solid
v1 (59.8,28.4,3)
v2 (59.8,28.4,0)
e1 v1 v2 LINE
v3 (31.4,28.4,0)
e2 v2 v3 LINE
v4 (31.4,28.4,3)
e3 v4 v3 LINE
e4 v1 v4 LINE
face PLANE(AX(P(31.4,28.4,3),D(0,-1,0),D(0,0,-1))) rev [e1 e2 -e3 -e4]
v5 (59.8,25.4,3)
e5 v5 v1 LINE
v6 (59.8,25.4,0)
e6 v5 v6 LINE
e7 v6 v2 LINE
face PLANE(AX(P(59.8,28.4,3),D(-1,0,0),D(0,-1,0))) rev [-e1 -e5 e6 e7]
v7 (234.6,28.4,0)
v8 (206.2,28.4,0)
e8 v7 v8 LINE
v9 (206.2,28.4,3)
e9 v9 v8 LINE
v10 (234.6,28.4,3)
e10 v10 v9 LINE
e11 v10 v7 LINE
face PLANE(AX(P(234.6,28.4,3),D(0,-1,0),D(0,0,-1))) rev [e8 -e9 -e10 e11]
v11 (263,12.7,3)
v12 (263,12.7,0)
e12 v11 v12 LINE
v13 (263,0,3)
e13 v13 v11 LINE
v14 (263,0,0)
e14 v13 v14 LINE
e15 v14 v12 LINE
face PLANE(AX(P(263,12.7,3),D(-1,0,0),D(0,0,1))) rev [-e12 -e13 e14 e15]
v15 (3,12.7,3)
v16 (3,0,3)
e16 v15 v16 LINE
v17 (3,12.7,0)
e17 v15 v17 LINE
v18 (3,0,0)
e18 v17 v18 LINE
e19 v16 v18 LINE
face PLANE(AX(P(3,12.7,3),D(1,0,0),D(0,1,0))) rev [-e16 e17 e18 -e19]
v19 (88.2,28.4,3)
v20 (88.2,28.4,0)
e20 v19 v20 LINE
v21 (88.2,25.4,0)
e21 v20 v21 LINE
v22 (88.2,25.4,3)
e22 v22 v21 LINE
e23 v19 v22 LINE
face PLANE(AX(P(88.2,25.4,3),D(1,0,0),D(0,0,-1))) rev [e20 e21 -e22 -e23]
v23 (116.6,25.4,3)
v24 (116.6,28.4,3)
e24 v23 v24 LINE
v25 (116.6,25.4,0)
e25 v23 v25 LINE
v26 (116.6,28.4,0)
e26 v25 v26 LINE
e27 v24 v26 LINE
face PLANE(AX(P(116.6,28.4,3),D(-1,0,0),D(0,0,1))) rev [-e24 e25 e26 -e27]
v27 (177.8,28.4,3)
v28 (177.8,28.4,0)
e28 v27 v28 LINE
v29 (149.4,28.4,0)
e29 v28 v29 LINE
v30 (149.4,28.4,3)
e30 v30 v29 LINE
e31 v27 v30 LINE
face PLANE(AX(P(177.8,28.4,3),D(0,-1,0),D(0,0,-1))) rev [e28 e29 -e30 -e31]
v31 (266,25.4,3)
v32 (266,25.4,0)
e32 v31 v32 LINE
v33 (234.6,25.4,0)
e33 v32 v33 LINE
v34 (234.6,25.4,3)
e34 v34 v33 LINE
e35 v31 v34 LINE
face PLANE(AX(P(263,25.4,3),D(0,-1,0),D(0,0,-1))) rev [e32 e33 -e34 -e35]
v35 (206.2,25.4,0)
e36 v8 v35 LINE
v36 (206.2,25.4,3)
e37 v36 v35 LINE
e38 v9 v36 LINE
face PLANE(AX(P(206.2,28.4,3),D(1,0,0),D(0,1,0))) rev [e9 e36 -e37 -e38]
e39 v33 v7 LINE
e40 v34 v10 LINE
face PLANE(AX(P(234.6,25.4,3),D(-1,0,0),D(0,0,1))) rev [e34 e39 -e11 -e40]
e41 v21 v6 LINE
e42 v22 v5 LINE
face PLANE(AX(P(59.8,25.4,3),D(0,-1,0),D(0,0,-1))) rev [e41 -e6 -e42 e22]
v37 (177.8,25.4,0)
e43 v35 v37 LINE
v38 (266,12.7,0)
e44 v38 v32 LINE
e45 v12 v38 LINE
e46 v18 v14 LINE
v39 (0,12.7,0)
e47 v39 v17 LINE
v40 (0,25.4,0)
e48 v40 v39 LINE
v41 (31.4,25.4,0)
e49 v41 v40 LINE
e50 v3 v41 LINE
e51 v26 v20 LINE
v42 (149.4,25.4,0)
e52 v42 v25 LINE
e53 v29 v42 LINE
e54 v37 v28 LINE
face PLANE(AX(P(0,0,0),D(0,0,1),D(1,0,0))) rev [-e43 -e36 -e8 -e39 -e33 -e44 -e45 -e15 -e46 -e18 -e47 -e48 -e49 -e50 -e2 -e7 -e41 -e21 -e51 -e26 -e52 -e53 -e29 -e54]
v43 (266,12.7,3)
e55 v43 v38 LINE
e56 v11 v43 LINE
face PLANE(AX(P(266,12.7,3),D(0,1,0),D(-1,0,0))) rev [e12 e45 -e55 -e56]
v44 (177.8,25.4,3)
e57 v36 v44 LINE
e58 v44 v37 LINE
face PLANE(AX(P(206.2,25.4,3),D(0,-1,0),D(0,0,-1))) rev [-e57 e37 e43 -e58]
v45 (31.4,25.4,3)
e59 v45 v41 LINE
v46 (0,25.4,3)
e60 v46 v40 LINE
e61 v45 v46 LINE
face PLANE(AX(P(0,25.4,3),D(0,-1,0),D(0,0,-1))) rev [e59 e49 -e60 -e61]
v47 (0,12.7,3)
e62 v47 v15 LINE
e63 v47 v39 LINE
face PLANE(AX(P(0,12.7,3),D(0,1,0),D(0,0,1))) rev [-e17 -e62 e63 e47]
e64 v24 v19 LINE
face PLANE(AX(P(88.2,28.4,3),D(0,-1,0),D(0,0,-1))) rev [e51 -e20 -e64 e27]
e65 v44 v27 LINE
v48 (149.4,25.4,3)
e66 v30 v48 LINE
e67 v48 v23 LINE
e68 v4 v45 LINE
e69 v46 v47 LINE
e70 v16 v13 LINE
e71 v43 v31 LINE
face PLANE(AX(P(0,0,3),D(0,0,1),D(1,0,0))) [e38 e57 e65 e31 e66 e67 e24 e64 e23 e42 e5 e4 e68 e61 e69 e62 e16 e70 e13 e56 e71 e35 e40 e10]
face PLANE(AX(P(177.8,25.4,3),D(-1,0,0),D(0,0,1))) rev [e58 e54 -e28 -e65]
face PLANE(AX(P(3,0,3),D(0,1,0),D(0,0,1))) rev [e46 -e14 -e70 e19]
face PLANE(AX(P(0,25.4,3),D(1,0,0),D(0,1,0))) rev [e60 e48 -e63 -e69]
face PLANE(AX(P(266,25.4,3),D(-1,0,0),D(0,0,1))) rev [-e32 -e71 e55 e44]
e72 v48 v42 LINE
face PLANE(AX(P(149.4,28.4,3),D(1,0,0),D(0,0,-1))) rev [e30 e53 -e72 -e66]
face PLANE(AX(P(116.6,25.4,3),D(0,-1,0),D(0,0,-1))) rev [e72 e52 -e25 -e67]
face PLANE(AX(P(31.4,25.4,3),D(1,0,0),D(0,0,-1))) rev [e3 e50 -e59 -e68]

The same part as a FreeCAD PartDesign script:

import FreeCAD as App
import Part
import Sketcher

V = App.Vector

doc = App.newDocument("Part")
params = doc.addObject("Spreadsheet::Sheet", "Params")
for row, (alias, value) in enumerate([
    ("sketch1_width", "3 mm"),
    ("sketch1_width2", "260 mm"),
    ("sketch1_width3", "31.4 mm"),
    ("sketch1_width4", "28.4 mm"),
    ("sketch1_height", "12.7 mm"),
    ("pad1_length", "3 mm"),
], start=1):
    params.set(f"A{row}", alias)
    params.set(f"B{row}", "=" + value)
    params.setAlias(f"B{row}", alias)

body = doc.addObject("PartDesign::Body", "Body")

# Sketch on XY plane
sketch1 = doc.addObject("Sketcher::SketchObject", "Sketch")
body.addObject(sketch1)
sketch1.AttachmentSupport = (doc.XY_Plane, [""])
sketch1.MapMode = "FlatFace"
sketch1.addGeometry(Part.LineSegment(V(0, 25.4, 0), V(0, 12.7, 0)), False)
sketch1.addGeometry(Part.LineSegment(V(0, 12.7, 0), V(3, 12.7, 0)), False)
sketch1.addGeometry(Part.LineSegment(V(3, 12.7, 0), V(3, 0, 0)), False)
sketch1.addGeometry(Part.LineSegment(V(3, 0, 0), V(263, 0, 0)), False)
sketch1.addGeometry(Part.LineSegment(V(263, 0, 0), V(263, 12.7, 0)), False)
sketch1.addGeometry(Part.LineSegment(V(263, 12.7, 0), V(266, 12.7, 0)), False)
sketch1.addGeometry(Part.LineSegment(V(266, 12.7, 0), V(266, 25.4, 0)), False)
sketch1.addGeometry(Part.LineSegment(V(266, 25.4, 0), V(234.6, 25.4, 0)), False)
sketch1.addGeometry(Part.LineSegment(V(234.6, 25.4, 0), V(234.6, 28.4, 0)), False)
sketch1.addGeometry(Part.LineSegment(V(234.6, 28.4, 0), V(206.2, 28.4, 0)), False)
sketch1.addGeometry(Part.LineSegment(V(206.2, 28.4, 0), V(206.2, 25.4, 0)), False)
sketch1.addGeometry(Part.LineSegment(V(206.2, 25.4, 0), V(177.8, 25.4, 0)), False)
sketch1.addGeometry(Part.LineSegment(V(177.8, 25.4, 0), V(177.8, 28.4, 0)), False)
sketch1.addGeometry(Part.LineSegment(V(177.8, 28.4, 0), V(149.4, 28.4, 0)), False)
sketch1.addGeometry(Part.LineSegment(V(149.4, 28.4, 0), V(149.4, 25.4, 0)), False)
sketch1.addGeometry(Part.LineSegment(V(149.4, 25.4, 0), V(116.6, 25.4, 0)), False)
sketch1.addGeometry(Part.LineSegment(V(116.6, 25.4, 0), V(116.6, 28.4, 0)), False)
sketch1.addGeometry(Part.LineSegment(V(116.6, 28.4, 0), V(88.2, 28.4, 0)), False)
sketch1.addGeometry(Part.LineSegment(V(88.2, 28.4, 0), V(88.2, 25.4, 0)), False)
sketch1.addGeometry(Part.LineSegment(V(88.2, 25.4, 0), V(59.8, 25.4, 0)), False)
sketch1.addGeometry(Part.LineSegment(V(59.8, 25.4, 0), V(59.8, 28.4, 0)), False)
sketch1.addGeometry(Part.LineSegment(V(59.8, 28.4, 0), V(31.4, 28.4, 0)), False)
sketch1.addGeometry(Part.LineSegment(V(31.4, 28.4, 0), V(31.4, 25.4, 0)), False)
sketch1.addGeometry(Part.LineSegment(V(31.4, 25.4, 0), V(0, 25.4, 0)), False)
sketch1.addConstraint(Sketcher.Constraint("Coincident", 0, 2, 1, 1))
sketch1.addConstraint(Sketcher.Constraint("Coincident", 1, 2, 2, 1))
sketch1.addConstraint(Sketcher.Constraint("Coincident", 2, 2, 3, 1))
sketch1.addConstraint(Sketcher.Constraint("Coincident", 3, 2, 4, 1))
sketch1.addConstraint(Sketcher.Constraint("Coincident", 4, 2, 5, 1))
sketch1.addConstraint(Sketcher.Constraint("Coincident", 5, 2, 6, 1))
sketch1.addConstraint(Sketcher.Constraint("Coincident", 6, 2, 7, 1))
sketch1.addConstraint(Sketcher.Constraint("Coincident", 7, 2, 8, 1))
sketch1.addConstraint(Sketcher.Constraint("Coincident", 8, 2, 9, 1))
sketch1.addConstraint(Sketcher.Constraint("Coincident", 9, 2, 10, 1))
sketch1.addConstraint(Sketcher.Constraint("Coincident", 10, 2, 11, 1))
sketch1.addConstraint(Sketcher.Constraint("Coincident", 11, 2, 12, 1))
sketch1.addConstraint(Sketcher.Constraint("Coincident", 12, 2, 13, 1))
sketch1.addConstraint(Sketcher.Constraint("Coincident", 13, 2, 14, 1))
sketch1.addConstraint(Sketcher.Constraint("Coincident", 14, 2, 15, 1))
sketch1.addConstraint(Sketcher.Constraint("Coincident", 15, 2, 16, 1))
sketch1.addConstraint(Sketcher.Constraint("Coincident", 16, 2, 17, 1))
sketch1.addConstraint(Sketcher.Constraint("Coincident", 17, 2, 18, 1))
sketch1.addConstraint(Sketcher.Constraint("Coincident", 18, 2, 19, 1))
sketch1.addConstraint(Sketcher.Constraint("Coincident", 19, 2, 20, 1))
sketch1.addConstraint(Sketcher.Constraint("Coincident", 20, 2, 21, 1))
sketch1.addConstraint(Sketcher.Constraint("Coincident", 21, 2, 22, 1))
sketch1.addConstraint(Sketcher.Constraint("Coincident", 22, 2, 23, 1))
sketch1.addConstraint(Sketcher.Constraint("Coincident", 23, 2, 0, 1))
sketch1.addConstraint(Sketcher.Constraint("Vertical", 0))
sketch1.addConstraint(Sketcher.Constraint("Horizontal", 1))
sketch1.addConstraint(Sketcher.Constraint("Vertical", 2))
sketch1.addConstraint(Sketcher.Constraint("Horizontal", 3))
sketch1.addConstraint(Sketcher.Constraint("Vertical", 4))
sketch1.addConstraint(Sketcher.Constraint("Horizontal", 5))
sketch1.addConstraint(Sketcher.Constraint("Vertical", 6))
sketch1.addConstraint(Sketcher.Constraint("Horizontal", 7))
sketch1.addConstraint(Sketcher.Constraint("Vertical", 8))
sketch1.addConstraint(Sketcher.Constraint("Horizontal", 9))
sketch1.addConstraint(Sketcher.Constraint("Vertical", 10))
sketch1.addConstraint(Sketcher.Constraint("Horizontal", 11))
sketch1.addConstraint(Sketcher.Constraint("Vertical", 12))
sketch1.addConstraint(Sketcher.Constraint("Horizontal", 13))
sketch1.addConstraint(Sketcher.Constraint("Vertical", 14))
sketch1.addConstraint(Sketcher.Constraint("Horizontal", 15))
sketch1.addConstraint(Sketcher.Constraint("Vertical", 16))
sketch1.addConstraint(Sketcher.Constraint("Horizontal", 17))
sketch1.addConstraint(Sketcher.Constraint("Vertical", 18))
sketch1.addConstraint(Sketcher.Constraint("Horizontal", 19))
sketch1.addConstraint(Sketcher.Constraint("Vertical", 20))
sketch1.addConstraint(Sketcher.Constraint("Horizontal", 21))
sketch1.addConstraint(Sketcher.Constraint("Vertical", 22))
sketch1.addConstraint(Sketcher.Constraint("Horizontal", 23))
sketch1.addConstraint(Sketcher.Constraint("PointOnObject", 0, 2, -2))
sketch1.addConstraint(Sketcher.Constraint("PointOnObject", 2, 2, -1))
sketch1.addConstraint(Sketcher.Constraint("Horizontal", 1, 2, 4, 2))
sketch1.addConstraint(Sketcher.Constraint("Horizontal", 7, 2, 10, 2))
sketch1.addConstraint(Sketcher.Constraint("Horizontal", 9, 2, 12, 2))
sketch1.addConstraint(Sketcher.Constraint("Horizontal", 11, 2, 14, 2))
sketch1.addConstraint(Sketcher.Constraint("Horizontal", 13, 2, 16, 2))
sketch1.addConstraint(Sketcher.Constraint("Horizontal", 15, 2, 18, 2))
sketch1.addConstraint(Sketcher.Constraint("Horizontal", 17, 2, 20, 2))
sketch1.addConstraint(Sketcher.Constraint("Horizontal", 19, 2, 22, 2))
sketch1.addConstraint(Sketcher.Constraint("Equal", 1, 5))
sketch1.addConstraint(Sketcher.Constraint("Equal", 9, 11))
sketch1.addConstraint(Sketcher.Constraint("Equal", 11, 13))
sketch1.addConstraint(Sketcher.Constraint("Equal", 13, 17))
sketch1.addConstraint(Sketcher.Constraint("Equal", 17, 19))
sketch1.addConstraint(Sketcher.Constraint("Equal", 19, 21))
sketch1.addConstraint(Sketcher.Constraint("Equal", 7, 23))
sketch1.addConstraint(Sketcher.Constraint("Equal", 0, 2))
sketch1.addConstraint(Sketcher.Constraint("Equal", 5, 8))
sketch1.addConstraint(Sketcher.Constraint("DistanceX", 1, 1, 1, 2, 3.0))
sketch1.addConstraint(Sketcher.Constraint("DistanceX", 3, 1, 3, 2, 260.0))
sketch1.addConstraint(Sketcher.Constraint("DistanceX", 7, 2, 7, 1, 31.4))
sketch1.addConstraint(Sketcher.Constraint("DistanceX", 9, 2, 9, 1, 28.4))
sketch1.addConstraint(Sketcher.Constraint("DistanceY", 0, 2, 0, 1, 12.7))
sketch1.setExpression("Constraints[67]", "Params.sketch1_width")
sketch1.setExpression("Constraints[68]", "Params.sketch1_width2")
sketch1.setExpression("Constraints[69]", "Params.sketch1_width3")
sketch1.setExpression("Constraints[70]", "Params.sketch1_width4")
sketch1.setExpression("Constraints[71]", "Params.sketch1_height")
pad1 = doc.addObject("PartDesign::Pad", "Pad")
body.addObject(pad1)
pad1.Profile = sketch1
pad1.setExpression("Length", "Params.pad1_length")

doc.recompute()
